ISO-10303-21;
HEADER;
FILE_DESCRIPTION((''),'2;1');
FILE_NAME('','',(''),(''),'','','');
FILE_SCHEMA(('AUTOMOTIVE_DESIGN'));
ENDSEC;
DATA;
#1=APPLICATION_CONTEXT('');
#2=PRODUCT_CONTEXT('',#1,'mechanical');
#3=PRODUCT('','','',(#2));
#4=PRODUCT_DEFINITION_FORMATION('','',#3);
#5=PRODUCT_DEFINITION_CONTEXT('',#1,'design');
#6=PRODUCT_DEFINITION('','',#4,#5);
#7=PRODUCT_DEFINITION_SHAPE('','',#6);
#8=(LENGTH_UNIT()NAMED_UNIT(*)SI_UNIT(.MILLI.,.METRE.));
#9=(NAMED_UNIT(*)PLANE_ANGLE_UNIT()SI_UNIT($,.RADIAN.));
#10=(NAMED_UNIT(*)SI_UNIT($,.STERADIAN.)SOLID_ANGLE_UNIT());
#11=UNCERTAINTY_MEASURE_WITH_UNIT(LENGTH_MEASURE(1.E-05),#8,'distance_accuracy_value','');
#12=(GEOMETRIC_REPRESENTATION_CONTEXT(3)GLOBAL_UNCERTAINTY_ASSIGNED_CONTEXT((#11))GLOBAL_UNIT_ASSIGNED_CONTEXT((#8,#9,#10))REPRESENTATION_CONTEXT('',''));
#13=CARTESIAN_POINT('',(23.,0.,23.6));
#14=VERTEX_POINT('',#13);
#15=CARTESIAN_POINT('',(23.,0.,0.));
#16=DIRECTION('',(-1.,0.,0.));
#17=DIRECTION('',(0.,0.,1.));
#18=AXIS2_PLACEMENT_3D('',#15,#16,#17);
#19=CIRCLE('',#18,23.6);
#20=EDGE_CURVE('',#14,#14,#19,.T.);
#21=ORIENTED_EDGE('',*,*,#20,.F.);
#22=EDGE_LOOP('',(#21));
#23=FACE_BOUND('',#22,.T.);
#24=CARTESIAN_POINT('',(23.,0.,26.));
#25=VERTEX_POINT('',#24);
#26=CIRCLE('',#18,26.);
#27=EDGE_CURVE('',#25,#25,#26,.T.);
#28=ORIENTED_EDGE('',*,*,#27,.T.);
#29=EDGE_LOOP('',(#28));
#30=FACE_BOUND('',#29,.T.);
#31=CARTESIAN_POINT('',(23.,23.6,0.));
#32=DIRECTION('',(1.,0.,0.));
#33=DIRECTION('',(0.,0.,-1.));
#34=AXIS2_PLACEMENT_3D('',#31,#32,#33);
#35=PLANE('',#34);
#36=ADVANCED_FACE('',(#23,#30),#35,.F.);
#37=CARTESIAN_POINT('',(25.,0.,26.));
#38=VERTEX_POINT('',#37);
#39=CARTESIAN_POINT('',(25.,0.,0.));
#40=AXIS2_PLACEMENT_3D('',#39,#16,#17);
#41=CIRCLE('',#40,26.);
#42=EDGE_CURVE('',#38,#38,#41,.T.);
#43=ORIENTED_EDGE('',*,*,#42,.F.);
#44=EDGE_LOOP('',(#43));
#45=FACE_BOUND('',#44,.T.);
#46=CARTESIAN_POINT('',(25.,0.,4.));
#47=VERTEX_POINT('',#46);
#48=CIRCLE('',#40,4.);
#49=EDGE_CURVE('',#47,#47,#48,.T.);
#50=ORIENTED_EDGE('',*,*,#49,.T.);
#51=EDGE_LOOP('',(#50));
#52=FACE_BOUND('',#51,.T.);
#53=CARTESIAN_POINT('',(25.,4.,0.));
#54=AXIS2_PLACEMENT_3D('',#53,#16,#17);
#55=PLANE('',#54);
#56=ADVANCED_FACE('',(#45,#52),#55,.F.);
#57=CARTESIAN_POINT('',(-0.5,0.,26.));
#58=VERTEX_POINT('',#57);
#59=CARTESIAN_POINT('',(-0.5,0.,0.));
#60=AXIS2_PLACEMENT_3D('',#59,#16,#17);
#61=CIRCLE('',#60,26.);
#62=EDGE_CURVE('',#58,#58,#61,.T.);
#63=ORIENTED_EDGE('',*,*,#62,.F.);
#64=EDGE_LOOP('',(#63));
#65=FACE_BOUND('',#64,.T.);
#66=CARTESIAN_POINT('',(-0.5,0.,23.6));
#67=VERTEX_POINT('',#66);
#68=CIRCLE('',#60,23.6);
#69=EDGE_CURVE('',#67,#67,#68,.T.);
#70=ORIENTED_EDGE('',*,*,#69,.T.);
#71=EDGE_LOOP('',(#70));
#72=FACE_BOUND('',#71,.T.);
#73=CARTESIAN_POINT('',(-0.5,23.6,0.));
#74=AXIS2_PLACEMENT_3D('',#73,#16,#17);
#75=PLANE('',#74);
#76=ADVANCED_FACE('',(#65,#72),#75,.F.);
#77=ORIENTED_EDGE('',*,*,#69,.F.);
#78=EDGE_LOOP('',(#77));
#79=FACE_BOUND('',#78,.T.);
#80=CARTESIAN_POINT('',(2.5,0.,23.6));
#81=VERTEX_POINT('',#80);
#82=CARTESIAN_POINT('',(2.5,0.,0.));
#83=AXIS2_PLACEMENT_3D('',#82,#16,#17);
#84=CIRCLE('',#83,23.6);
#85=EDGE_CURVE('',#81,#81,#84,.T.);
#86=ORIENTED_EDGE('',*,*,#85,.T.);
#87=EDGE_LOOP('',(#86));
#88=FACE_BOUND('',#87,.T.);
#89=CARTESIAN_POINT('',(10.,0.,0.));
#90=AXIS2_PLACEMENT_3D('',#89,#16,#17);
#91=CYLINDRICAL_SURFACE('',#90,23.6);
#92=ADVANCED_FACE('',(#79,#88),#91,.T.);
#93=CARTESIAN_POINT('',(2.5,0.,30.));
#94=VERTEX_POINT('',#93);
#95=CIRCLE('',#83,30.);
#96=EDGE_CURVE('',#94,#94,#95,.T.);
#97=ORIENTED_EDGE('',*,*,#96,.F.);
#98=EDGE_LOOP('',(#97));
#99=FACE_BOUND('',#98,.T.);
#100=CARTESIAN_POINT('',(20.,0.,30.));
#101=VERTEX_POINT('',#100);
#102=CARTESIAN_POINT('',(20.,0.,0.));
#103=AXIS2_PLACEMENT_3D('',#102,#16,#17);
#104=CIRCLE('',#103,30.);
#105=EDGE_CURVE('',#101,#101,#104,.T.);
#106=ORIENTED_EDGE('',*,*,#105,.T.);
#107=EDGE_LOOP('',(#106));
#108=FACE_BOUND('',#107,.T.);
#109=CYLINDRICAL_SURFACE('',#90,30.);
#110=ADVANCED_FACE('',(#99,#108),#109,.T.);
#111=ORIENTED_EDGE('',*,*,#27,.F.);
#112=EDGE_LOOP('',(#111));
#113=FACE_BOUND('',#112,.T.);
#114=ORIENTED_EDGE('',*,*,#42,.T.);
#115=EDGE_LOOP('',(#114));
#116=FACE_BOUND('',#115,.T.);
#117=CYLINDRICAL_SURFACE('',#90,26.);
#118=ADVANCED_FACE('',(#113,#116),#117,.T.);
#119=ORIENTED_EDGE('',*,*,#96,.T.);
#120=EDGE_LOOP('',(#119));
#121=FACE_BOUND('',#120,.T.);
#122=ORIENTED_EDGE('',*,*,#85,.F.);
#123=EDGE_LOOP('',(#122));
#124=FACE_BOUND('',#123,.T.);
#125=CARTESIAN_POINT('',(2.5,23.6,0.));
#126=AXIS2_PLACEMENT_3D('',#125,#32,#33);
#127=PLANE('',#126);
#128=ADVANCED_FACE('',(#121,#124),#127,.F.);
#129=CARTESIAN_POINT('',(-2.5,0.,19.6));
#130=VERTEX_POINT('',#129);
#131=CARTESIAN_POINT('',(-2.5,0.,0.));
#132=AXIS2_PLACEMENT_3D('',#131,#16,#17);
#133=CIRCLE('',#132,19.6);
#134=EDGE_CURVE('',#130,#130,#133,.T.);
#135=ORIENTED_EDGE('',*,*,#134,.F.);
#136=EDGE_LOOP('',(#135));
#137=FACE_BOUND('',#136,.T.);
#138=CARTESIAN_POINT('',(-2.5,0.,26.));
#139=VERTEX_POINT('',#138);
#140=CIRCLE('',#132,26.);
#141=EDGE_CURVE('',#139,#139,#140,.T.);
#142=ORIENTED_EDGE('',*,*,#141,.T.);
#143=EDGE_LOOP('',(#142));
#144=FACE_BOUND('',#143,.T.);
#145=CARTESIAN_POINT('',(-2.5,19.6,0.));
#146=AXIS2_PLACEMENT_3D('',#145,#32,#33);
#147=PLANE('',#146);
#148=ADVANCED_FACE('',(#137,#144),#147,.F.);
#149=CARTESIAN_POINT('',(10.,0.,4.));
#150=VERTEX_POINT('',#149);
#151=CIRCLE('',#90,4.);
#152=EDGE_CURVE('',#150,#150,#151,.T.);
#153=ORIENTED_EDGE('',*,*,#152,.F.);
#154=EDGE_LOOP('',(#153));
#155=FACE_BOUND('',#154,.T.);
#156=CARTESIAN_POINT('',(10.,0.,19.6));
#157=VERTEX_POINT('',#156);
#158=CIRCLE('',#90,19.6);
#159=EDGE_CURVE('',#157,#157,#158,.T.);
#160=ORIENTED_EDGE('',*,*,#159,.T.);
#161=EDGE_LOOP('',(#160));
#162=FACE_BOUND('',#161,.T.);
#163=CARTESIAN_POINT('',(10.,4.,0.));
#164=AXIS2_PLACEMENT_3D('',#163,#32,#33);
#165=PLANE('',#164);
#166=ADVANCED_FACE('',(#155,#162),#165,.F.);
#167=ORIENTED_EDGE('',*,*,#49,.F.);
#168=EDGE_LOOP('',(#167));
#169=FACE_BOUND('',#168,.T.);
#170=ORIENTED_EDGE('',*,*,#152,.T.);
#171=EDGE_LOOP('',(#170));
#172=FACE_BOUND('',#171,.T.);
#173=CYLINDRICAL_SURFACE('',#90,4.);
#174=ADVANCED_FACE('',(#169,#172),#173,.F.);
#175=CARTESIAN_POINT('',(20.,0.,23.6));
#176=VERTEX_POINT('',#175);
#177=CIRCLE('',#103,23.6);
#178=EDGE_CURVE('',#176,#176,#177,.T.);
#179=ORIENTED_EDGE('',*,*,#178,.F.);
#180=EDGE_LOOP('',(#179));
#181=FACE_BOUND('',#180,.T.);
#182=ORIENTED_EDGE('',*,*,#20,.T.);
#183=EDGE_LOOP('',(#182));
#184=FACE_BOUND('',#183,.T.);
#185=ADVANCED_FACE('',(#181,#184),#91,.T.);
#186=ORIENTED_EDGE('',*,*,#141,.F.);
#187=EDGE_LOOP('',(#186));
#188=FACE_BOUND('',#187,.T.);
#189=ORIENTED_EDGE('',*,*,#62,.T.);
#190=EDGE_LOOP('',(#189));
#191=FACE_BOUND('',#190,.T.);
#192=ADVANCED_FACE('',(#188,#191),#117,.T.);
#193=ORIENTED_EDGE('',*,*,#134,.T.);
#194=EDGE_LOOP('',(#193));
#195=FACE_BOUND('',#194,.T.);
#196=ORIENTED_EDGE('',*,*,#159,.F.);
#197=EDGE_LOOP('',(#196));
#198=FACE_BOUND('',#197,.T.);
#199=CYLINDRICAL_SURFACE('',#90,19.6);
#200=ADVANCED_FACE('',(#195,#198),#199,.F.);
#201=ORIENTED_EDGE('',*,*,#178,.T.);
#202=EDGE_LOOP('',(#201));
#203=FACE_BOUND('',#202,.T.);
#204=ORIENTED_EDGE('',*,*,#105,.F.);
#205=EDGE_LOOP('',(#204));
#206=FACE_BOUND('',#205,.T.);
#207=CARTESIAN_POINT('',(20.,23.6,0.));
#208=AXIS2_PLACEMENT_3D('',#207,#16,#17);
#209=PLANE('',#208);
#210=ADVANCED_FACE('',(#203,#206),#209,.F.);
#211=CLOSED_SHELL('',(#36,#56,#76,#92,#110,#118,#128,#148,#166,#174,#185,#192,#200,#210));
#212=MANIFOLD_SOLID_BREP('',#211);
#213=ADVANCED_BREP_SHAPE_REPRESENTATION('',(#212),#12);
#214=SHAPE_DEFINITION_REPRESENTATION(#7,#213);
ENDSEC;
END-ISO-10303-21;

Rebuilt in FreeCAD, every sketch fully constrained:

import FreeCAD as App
import Part
import Sketcher
from FreeCAD import Vector

doc = App.newDocument("Part")
params = doc.addObject("Spreadsheet::Sheet", "Params")
for row, (alias, value) in enumerate([
    ("sketch1_width", "15 mm"),
    ("sketch1_width2", "2 mm"),
    ("sketch1_width3", "3 mm"),
    ("sketch1_height", "22 mm"),
    ("sketch1_width4", "12.5 mm"),
    ("revolution_angle", "360 deg"),
], start=1):
    params.set(f"A{row}", alias)
    params.set(f"B{row}", "=" + value)
    params.setAlias(f"B{row}", alias)

body = doc.addObject("PartDesign::Body", "Body")

sketch1 = body.newObject("Sketcher::SketchObject", "Sketch")
sketch1.AttachmentSupport = (doc.getObject("XY_Plane"), [""])
sketch1.MapMode = "FlatFace"
sketch1.addGeometry([
    Part.LineSegment(Vector(-2.5, 26, 0), Vector(-2.5, 19.6, 0)),
    Part.LineSegment(Vector(-2.5, 19.6, 0), Vector(10, 19.6, 0)),
    Part.LineSegment(Vector(10, 19.6, 0), Vector(10, 4, 0)),
    Part.LineSegment(Vector(10, 4, 0), Vector(25, 4, 0)),
    Part.LineSegment(Vector(25, 4, 0), Vector(25, 26, 0)),
    Part.LineSegment(Vector(25, 26, 0), Vector(23, 26, 0)),
    Part.LineSegment(Vector(23, 26, 0), Vector(23, 23.6, 0)),
    Part.LineSegment(Vector(23, 23.6, 0), Vector(20, 23.6, 0)),
    Part.LineSegment(Vector(20, 23.6, 0), Vector(20, 30, 0)),
    Part.LineSegment(Vector(20, 30, 0), Vector(2.5, 30, 0)),
    Part.LineSegment(Vector(2.5, 30, 0), Vector(2.5, 23.6, 0)),
    Part.LineSegment(Vector(2.5, 23.6, 0), Vector(-0.5, 23.6, 0)),
    Part.LineSegment(Vector(-0.5, 23.6, 0), Vector(-0.5, 26, 0)),
    Part.LineSegment(Vector(-0.5, 26, 0), Vector(-2.5, 26, 0)),
], False)
sketch1.addConstraint([
    Sketcher.Constraint("Coincident", 0, 2, 1, 1),
    Sketcher.Constraint("Coincident", 1, 2, 2, 1),
    Sketcher.Constraint("Coincident", 2, 2, 3, 1),
    Sketcher.Constraint("Coincident", 3, 2, 4, 1),
    Sketcher.Constraint("Coincident", 4, 2, 5, 1),
    Sketcher.Constraint("Coincident", 5, 2, 6, 1),
    Sketcher.Constraint("Coincident", 6, 2, 7, 1),
    Sketcher.Constraint("Coincident", 7, 2, 8, 1),
    Sketcher.Constraint("Coincident", 8, 2, 9, 1),
    Sketcher.Constraint("Coincident", 9, 2, 10, 1),
    Sketcher.Constraint("Coincident", 10, 2, 11, 1),
    Sketcher.Constraint("Coincident", 11, 2, 12, 1),
    Sketcher.Constraint("Coincident", 12, 2, 13, 1),
    Sketcher.Constraint("Coincident", 13, 2, 0, 1),
    Sketcher.Constraint("Vertical", 0),
    Sketcher.Constraint("Horizontal", 1),
    Sketcher.Constraint("Vertical", 2),
    Sketcher.Constraint("Horizontal", 3),
    Sketcher.Constraint("Vertical", 4),
    Sketcher.Constraint("Horizontal", 5),
    Sketcher.Constraint("Vertical", 6),
    Sketcher.Constraint("Horizontal", 7),
    Sketcher.Constraint("Vertical", 8),
    Sketcher.Constraint("Horizontal", 9),
    Sketcher.Constraint("Vertical", 10),
    Sketcher.Constraint("Horizontal", 11),
    Sketcher.Constraint("Vertical", 12),
    Sketcher.Constraint("Horizontal", 13),
    Sketcher.Constraint("Horizontal", 7, 2, 10, 2),
    Sketcher.Constraint("Horizontal", 5, 2, 12, 2),
    Sketcher.Constraint("Equal", 7, 11),
    Sketcher.Constraint("Equal", 5, 13),
    Sketcher.Constraint("Equal", 0, 8),
    Sketcher.Constraint("DistanceX", 3, 1, 3, 2, 15.0),
    Sketcher.Constraint("DistanceX", 5, 2, 5, 1, 2.0),
    Sketcher.Constraint("DistanceX", 7, 2, 7, 1, 3.0),
    Sketcher.Constraint("DistanceY", 4, 1, 4, 2, 22.0),
    Sketcher.Constraint("DistanceX", 1, 1, 1, 2, 12.5),
    Sketcher.Constraint("DistanceY", 0, 2, 0, 1, 6.4),
    Sketcher.Constraint("DistanceY", 6, 2, 6, 1, 2.4),
    Sketcher.Constraint("DistanceX", -1, 1, 1, 2, 10.0),
    Sketcher.Constraint("DistanceY", -1, 1, 2, 2, 4.0),
])
sketch1.setExpression("Constraints[33]", "Params.sketch1_width")
sketch1.setExpression("Constraints[34]", "Params.sketch1_width2")
sketch1.setExpression("Constraints[35]", "Params.sketch1_width3")
sketch1.setExpression("Constraints[36]", "Params.sketch1_height")
sketch1.setExpression("Constraints[37]", "Params.sketch1_width4")
revolution = body.newObject("PartDesign::Revolution", "Revolution")
revolution.Profile = sketch1
revolution.ReferenceAxis = (sketch1, ["H_Axis"])
revolution.setExpression("Angle", "Params.revolution_angle")

doc.recompute()
